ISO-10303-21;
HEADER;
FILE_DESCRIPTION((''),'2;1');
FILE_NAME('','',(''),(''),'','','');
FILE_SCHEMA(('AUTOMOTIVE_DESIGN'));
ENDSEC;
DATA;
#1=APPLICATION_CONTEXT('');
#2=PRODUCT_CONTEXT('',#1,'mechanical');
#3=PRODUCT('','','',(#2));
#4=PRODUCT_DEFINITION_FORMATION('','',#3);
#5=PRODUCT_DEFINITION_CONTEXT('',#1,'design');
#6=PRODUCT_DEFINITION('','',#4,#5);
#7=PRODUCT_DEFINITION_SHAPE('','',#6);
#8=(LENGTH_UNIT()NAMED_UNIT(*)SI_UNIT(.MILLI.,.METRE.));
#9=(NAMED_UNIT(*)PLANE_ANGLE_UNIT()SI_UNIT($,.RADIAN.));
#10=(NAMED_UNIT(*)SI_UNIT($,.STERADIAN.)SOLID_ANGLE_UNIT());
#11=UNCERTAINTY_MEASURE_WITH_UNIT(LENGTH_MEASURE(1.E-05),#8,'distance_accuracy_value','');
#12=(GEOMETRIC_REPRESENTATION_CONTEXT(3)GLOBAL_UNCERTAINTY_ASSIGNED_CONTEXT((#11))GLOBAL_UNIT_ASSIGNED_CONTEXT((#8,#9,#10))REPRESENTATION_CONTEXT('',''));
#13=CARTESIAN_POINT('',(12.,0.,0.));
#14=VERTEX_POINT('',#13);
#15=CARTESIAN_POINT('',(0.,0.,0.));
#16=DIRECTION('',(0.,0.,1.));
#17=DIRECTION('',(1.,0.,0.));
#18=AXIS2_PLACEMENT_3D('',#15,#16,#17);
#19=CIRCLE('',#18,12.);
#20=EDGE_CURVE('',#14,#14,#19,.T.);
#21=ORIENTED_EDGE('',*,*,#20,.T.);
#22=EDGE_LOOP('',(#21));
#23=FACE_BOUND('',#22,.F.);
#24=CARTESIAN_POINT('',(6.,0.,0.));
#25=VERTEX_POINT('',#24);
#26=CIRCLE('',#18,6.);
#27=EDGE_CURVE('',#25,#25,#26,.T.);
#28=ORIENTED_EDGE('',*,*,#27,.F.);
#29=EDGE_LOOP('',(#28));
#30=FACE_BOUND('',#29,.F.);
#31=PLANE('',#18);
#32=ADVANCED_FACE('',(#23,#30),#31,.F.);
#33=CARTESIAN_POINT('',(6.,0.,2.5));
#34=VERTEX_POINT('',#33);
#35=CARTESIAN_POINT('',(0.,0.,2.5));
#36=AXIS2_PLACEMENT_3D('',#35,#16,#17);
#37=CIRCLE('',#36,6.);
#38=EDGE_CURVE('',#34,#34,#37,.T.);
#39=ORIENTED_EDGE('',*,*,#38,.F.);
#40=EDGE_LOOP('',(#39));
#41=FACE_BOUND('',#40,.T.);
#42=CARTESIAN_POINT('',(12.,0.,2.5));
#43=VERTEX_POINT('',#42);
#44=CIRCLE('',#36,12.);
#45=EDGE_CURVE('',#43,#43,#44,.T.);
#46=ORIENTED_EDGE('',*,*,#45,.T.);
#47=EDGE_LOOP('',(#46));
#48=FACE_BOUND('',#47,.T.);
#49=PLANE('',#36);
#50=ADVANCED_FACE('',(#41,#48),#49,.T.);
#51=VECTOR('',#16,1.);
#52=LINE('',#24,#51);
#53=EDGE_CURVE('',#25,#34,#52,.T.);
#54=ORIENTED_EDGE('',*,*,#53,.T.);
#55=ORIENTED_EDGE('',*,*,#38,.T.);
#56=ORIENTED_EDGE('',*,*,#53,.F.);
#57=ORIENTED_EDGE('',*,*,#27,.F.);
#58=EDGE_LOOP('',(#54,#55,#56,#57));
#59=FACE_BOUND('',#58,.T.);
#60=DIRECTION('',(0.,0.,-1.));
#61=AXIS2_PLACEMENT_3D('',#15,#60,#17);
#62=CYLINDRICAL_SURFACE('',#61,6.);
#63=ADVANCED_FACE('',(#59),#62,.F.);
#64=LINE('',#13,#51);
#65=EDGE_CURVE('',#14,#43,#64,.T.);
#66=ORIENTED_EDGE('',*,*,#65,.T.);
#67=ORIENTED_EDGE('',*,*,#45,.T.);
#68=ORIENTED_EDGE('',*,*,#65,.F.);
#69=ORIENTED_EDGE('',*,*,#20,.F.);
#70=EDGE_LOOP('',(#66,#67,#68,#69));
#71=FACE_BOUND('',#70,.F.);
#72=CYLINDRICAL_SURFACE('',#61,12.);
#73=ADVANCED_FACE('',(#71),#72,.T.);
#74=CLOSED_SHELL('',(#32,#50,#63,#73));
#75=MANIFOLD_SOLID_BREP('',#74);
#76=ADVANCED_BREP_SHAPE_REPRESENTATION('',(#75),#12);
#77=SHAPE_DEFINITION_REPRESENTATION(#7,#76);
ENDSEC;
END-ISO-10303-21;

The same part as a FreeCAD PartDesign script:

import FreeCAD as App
import Part
import Sketcher
from FreeCAD import Vector

doc = App.newDocument("Part")
params = doc.addObject("Spreadsheet::Sheet", "Params")
for row, (alias, value) in enumerate([
    ("sketch1_diameter", "24 mm"),
    ("sketch1_diameter2", "12 mm"),
    ("pad1_length", "2.5 mm"),
], start=1):
    params.set(f"A{row}", alias)
    params.set(f"B{row}", "=" + value)
    params.setAlias(f"B{row}", alias)

body = doc.addObject("PartDesign::Body", "Body")

sketch1 = body.newObject("Sketcher::SketchObject", "Sketch")
sketch1.AttachmentSupport = (doc.getObject("XY_Plane"), [""])
sketch1.MapMode = "FlatFace"
sketch1.addGeometry(Part.Circle(Vector(0, 0, 0), Vector(0, 0, 1), 12), False)
sketch1.addGeometry(Part.Circle(Vector(0, 0, 0), Vector(0, 0, 1), 6), False)
sketch1.addConstraint(Sketcher.Constraint("Coincident", 0, 3, -1, 1))
sketch1.addConstraint(Sketcher.Constraint("Coincident", 1, 3, -1, 1))
sketch1.addConstraint(Sketcher.Constraint("Diameter", 0, 24.0))
sketch1.addConstraint(Sketcher.Constraint("Diameter", 1, 12.0))
sketch1.setExpression("Constraints[2]", "Params.sketch1_diameter")
sketch1.setExpression("Constraints[3]", "Params.sketch1_diameter2")
pad1 = body.newObject("PartDesign::Pad", "Pad")
pad1.Profile = sketch1
pad1.setExpression("Length", "Params.pad1_length")

doc.recompute()
